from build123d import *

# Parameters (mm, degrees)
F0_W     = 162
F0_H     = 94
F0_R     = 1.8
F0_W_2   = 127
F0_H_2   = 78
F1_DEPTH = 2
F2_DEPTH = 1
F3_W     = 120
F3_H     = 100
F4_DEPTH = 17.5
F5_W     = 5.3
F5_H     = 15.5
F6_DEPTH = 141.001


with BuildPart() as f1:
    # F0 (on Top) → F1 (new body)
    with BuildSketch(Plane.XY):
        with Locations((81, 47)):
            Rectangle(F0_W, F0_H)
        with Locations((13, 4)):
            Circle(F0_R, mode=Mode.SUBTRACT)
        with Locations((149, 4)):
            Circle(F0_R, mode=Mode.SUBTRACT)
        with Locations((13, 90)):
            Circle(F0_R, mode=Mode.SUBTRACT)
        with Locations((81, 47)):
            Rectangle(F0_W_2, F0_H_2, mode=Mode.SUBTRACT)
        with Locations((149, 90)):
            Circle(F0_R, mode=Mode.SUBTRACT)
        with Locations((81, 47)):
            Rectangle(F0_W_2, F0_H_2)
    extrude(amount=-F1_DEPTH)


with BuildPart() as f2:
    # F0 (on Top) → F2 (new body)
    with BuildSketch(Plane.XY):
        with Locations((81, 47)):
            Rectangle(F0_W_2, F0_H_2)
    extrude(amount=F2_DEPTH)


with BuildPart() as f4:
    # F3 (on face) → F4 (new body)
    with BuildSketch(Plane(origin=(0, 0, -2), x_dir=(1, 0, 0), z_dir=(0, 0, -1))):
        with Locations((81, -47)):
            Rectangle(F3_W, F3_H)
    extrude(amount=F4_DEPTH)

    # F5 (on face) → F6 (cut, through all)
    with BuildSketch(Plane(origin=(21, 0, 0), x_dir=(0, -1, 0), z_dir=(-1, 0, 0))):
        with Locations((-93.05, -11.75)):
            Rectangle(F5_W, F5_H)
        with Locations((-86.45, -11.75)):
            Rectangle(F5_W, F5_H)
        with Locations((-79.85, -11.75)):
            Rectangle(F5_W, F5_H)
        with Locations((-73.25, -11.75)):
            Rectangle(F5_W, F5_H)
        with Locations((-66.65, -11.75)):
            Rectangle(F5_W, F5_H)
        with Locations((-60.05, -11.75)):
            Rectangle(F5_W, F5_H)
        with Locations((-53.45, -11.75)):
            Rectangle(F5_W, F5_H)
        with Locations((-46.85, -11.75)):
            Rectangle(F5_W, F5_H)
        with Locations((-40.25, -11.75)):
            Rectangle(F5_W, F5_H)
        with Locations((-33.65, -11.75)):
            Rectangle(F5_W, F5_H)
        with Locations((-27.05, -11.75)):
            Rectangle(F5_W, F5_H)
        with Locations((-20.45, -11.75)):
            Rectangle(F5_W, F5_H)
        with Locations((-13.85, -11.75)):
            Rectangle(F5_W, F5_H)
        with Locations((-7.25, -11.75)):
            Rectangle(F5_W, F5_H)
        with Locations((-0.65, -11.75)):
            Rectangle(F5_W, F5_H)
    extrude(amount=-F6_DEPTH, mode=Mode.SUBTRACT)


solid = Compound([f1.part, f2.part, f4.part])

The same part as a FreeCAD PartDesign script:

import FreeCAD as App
import Part
import Sketcher

V = App.Vector
Q = App.Units.Quantity

doc = App.newDocument("Part")
body = doc.addObject("PartDesign::Body", "Body")

# Sketch on XY plane
sketch1 = body.newObject("Sketcher::SketchObject", "Sketch")
sketch1.AttachmentSupport = (doc.getObject("XY_Plane"), [""])
sketch1.MapMode = "FlatFace"
sketch1.addGeometry([
    Part.LineSegment(V(0, 94, 0), V(0, 0, 0)),  # 0
    Part.LineSegment(V(0, 0, 0), V(162, 0, 0)),  # 1
    Part.LineSegment(V(162, 0, 0), V(162, 94, 0)),  # 2
    Part.LineSegment(V(162, 94, 0), V(0, 94, 0)),  # 3
    Part.Circle(V(13, 4, 0), V(0, 0, 1), 1.8),  # 4
    Part.Circle(V(149, 4, 0), V(0, 0, 1), 1.8),  # 5
    Part.Circle(V(13, 90, 0), V(0, 0, 1), 1.8),  # 6
    Part.Circle(V(149, 90, 0), V(0, 0, 1), 1.8),  # 7
], False)
sketch1.addConstraint([
    Sketcher.Constraint("Coincident", 0, 2, 1, 1),
    Sketcher.Constraint("Coincident", 1, 2, 2, 1),
    Sketcher.Constraint("Coincident", 2, 2, 3, 1),
    Sketcher.Constraint("Coincident", 3, 2, 0, 1),
    Sketcher.Constraint("Vertical", 0),
    Sketcher.Constraint("Horizontal", 1),
    Sketcher.Constraint("Vertical", 2),
    Sketcher.Constraint("Horizontal", 3),
    Sketcher.Constraint("Coincident", 0, 2, -1, 1),
    Sketcher.Constraint("Equal", 4, 5),
    Sketcher.Constraint("Equal", 5, 6),
    Sketcher.Constraint("Equal", 6, 7),
    Sketcher.Constraint("Horizontal", 4, 3, 5, 3),
    Sketcher.Constraint("Horizontal", 6, 3, 7, 3),
    Sketcher.Constraint("Vertical", 4, 3, 6, 3),
    Sketcher.Constraint("Vertical", 5, 3, 7, 3),
    Sketcher.Constraint("Diameter", 4, Q("3.6 mm")),
    Sketcher.Constraint("DistanceX", 1, 1, 1, 2, Q("162 mm")),
    Sketcher.Constraint("DistanceY", 0, 2, 0, 1, Q("94 mm")),
    Sketcher.Constraint("DistanceX", -1, 1, 4, 3, Q("13 mm")),
    Sketcher.Constraint("DistanceY", -1, 1, 4, 3, Q("4 mm")),
    Sketcher.Constraint("DistanceX", -1, 1, 5, 3, Q("149 mm")),
    Sketcher.Constraint("DistanceY", -1, 1, 6, 3, Q("90 mm")),
])
pad1 = body.newObject("PartDesign::Pad", "Pad")
pad1.Profile = sketch1
pad1.Length = 2
pad1.Reversed = True
body2 = doc.addObject("PartDesign::Body", "Body001")

# Sketch on XY plane
sketch2 = body2.newObject("Sketcher::SketchObject", "Sketch001")
sketch2.AttachmentSupport = (doc.getObject("XY_Plane001"), [""])
sketch2.MapMode = "FlatFace"
sketch2.addGeometry([
    Part.LineSegment(V(18, 86, 0), V(18, 8, 0)),
    Part.LineSegment(V(18, 8, 0), V(144, 8, 0)),
    Part.LineSegment(V(144, 8, 0), V(144, 86, 0)),
    Part.LineSegment(V(144, 86, 0), V(18, 86, 0)),
], False)
sketch2.addConstraint([
    Sketcher.Constraint("Coincident", 0, 2, 1, 1),
    Sketcher.Constraint("Coincident", 1, 2, 2, 1),
    Sketcher.Constraint("Coincident", 2, 2, 3, 1),
    Sketcher.Constraint("Coincident", 3, 2, 0, 1),
    Sketcher.Constraint("Vertical", 0),
    Sketcher.Constraint("Horizontal", 1),
    Sketcher.Constraint("Vertical", 2),
    Sketcher.Constraint("Horizontal", 3),
    Sketcher.Constraint("DistanceX", 1, 1, 1, 2, Q("127 mm")),
    Sketcher.Constraint("DistanceY", 0, 2, 0, 1, Q("78 mm")),
    Sketcher.Constraint("DistanceY", -1, 1, 0, 2, Q("8 mm")),
    Sketcher.Constraint("DistanceX", -1, 1, 0, 2, Q("17.5 mm")),
])
pad2 = body2.newObject("PartDesign::Pad", "Pad001")
pad2.Profile = sketch2
pad2.Length = 1
body3 = doc.addObject("PartDesign::Body", "Body002")

# Sketch on XY plane
sketch3 = body3.newObject("Sketcher::SketchObject", "Sketch002")
sketch3.AttachmentSupport = (doc.getObject("XY_Plane002"), [""])
sketch3.MapMode = "FlatFace"
sketch3.AttachmentOffset = App.Placement(V(0, 0, -2), App.Rotation())
sketch3.addGeometry([
    Part.LineSegment(V(21, -3, 0), V(21, 97, 0)),
    Part.LineSegment(V(21, 97, 0), V(141, 97, 0)),
    Part.LineSegment(V(141, 97, 0), V(141, -3, 0)),
    Part.LineSegment(V(141, -3, 0), V(21, -3, 0)),
], False)
sketch3.addConstraint([
    Sketcher.Constraint("Coincident", 0, 2, 1, 1),
    Sketcher.Constraint("Coincident", 1, 2, 2, 1),
    Sketcher.Constraint("Coincident", 2, 2, 3, 1),
    Sketcher.Constraint("Coincident", 3, 2, 0, 1),
    Sketcher.Constraint("Vertical", 0),
    Sketcher.Constraint("Horizontal", 1),
    Sketcher.Constraint("Vertical", 2),
    Sketcher.Constraint("Horizontal", 3),
    Sketcher.Constraint("DistanceX", 1, 1, 1, 2, Q("120 mm")),
    Sketcher.Constraint("DistanceY", 0, 1, 0, 2, Q("100 mm")),
    Sketcher.Constraint("DistanceX", -1, 1, 0, 2, Q("21 mm")),
    Sketcher.Constraint("DistanceY", -1, 1, 0, 2, Q("97 mm")),
])
pad3 = body3.newObject("PartDesign::Pad", "Pad002")
pad3.Profile = sketch3
pad3.Length = 17.5
pad3.Reversed = True

# Sketch on YZ plane
sketch4 = body3.newObject("Sketcher::SketchObject", "Sketch003")
sketch4.AttachmentSupport = (doc.getObject("YZ_Plane002"), [""])
sketch4.MapMode = "FlatFace"
sketch4.AttachmentOffset = App.Placement(V(0, 0, 21), App.Rotation())
sketch4.addGeometry([
    Part.LineSegment(V(96, -4, 0), V(96, -20, 0)),  # 0
    Part.LineSegment(V(96, -20, 0), V(90, -20, 0)),  # 1
    Part.LineSegment(V(90, -20, 0), V(90, -4, 0)),  # 2
    Part.LineSegment(V(90, -4, 0), V(96, -4, 0)),  # 3
    Part.LineSegment(V(89, -4, 0), V(89, -20, 0)),  # 4
    Part.LineSegment(V(89, -20, 0), V(84, -20, 0)),  # 5
    Part.LineSegment(V(84, -20, 0), V(84, -4, 0)),  # 6
    Part.LineSegment(V(84, -4, 0), V(89, -4, 0)),  # 7
    Part.LineSegment(V(82, -4, 0), V(82, -20, 0)),  # 8
    Part.LineSegment(V(82, -20, 0), V(77, -20, 0)),  # 9
    Part.LineSegment(V(77, -20, 0), V(77, -4, 0)),  # 10
    Part.LineSegment(V(77, -4, 0), V(82, -4, 0)),  # 11
    Part.LineSegment(V(76, -4, 0), V(76, -20, 0)),  # 12
    Part.LineSegment(V(76, -20, 0), V(71, -20, 0)),  # 13
    Part.LineSegment(V(71, -20, 0), V(71, -4, 0)),  # 14
    Part.LineSegment(V(71, -4, 0), V(76, -4, 0)),  # 15
    Part.LineSegment(V(69, -4, 0), V(69, -20, 0)),  # 16
    Part.LineSegment(V(69, -20, 0), V(64, -20, 0)),  # 17
    Part.LineSegment(V(64, -20, 0), V(64, -4, 0)),  # 18
    Part.LineSegment(V(64, -4, 0), V(69, -4, 0)),  # 19
    Part.LineSegment(V(63, -4, 0), V(63, -20, 0)),  # 20
    Part.LineSegment(V(63, -20, 0), V(57, -20, 0)),  # 21
    Part.LineSegment(V(57, -20, 0), V(57, -4, 0)),  # 22
    Part.LineSegment(V(57, -4, 0), V(63, -4, 0)),  # 23
    Part.LineSegment(V(56, -4, 0), V(56, -20, 0)),  # 24
    Part.LineSegment(V(56, -20, 0), V(51, -20, 0)),  # 25
    Part.LineSegment(V(51, -20, 0), V(51, -4, 0)),  # 26
    Part.LineSegment(V(51, -4, 0), V(56, -4, 0)),  # 27
    Part.LineSegment(V(50, -4, 0), V(50, -20, 0)),  # 28
    Part.LineSegment(V(50, -20, 0), V(44, -20, 0)),  # 29
    Part.LineSegment(V(44, -20, 0), V(44, -4, 0)),  # 30
    Part.LineSegment(V(44, -4, 0), V(50, -4, 0)),  # 31
    Part.LineSegment(V(43, -4, 0), V(43, -20, 0)),  # 32
    Part.LineSegment(V(43, -20, 0), V(38, -20, 0)),  # 33
    Part.LineSegment(V(38, -20, 0), V(38, -4, 0)),  # 34
    Part.LineSegment(V(38, -4, 0), V(43, -4, 0)),  # 35
    Part.LineSegment(V(36, -4, 0), V(36, -20, 0)),  # 36
    Part.LineSegment(V(36, -20, 0), V(31, -20, 0)),  # 37
    Part.LineSegment(V(31, -20, 0), V(31, -4, 0)),  # 38
    Part.LineSegment(V(31, -4, 0), V(36, -4, 0)),  # 39
    Part.LineSegment(V(30, -4, 0), V(30, -20, 0)),  # 40
    Part.LineSegment(V(30, -20, 0), V(24, -20, 0)),  # 41
    Part.LineSegment(V(24, -20, 0), V(24, -4, 0)),  # 42
    Part.LineSegment(V(24, -4, 0), V(30, -4, 0)),  # 43
    Part.LineSegment(V(23, -4, 0), V(23, -20, 0)),  # 44
    Part.LineSegment(V(23, -20, 0), V(18, -20, 0)),  # 45
    Part.LineSegment(V(18, -20, 0), V(18, -4, 0)),  # 46
    Part.LineSegment(V(18, -4, 0), V(23, -4, 0)),  # 47
    Part.LineSegment(V(16, -4, 0), V(16, -20, 0)),  # 48
    Part.LineSegment(V(16, -20, 0), V(11, -20, 0)),  # 49
    Part.LineSegment(V(11, -20, 0), V(11, -4, 0)),  # 50
    Part.LineSegment(V(11, -4, 0), V(16, -4, 0)),  # 51
    Part.LineSegment(V(10, -4, 0), V(10, -20, 0)),  # 52
    Part.LineSegment(V(10, -20, 0), V(5, -20, 0)),  # 53
    Part.LineSegment(V(5, -20, 0), V(5, -4, 0)),  # 54
    Part.LineSegment(V(5, -4, 0), V(10, -4, 0)),  # 55
    Part.LineSegment(V(3, -4, 0), V(3, -20, 0)),  # 56
    Part.LineSegment(V(3, -20, 0), V(-2, -20, 0)),  # 57
    Part.LineSegment(V(-2, -20, 0), V(-2, -4, 0)),  # 58
    Part.LineSegment(V(-2, -4, 0), V(3, -4, 0)),  # 59
], False)
sketch4.addConstraint([
    Sketcher.Constraint("Coincident", 0, 2, 1, 1),
    Sketcher.Constraint("Coincident", 1, 2, 2, 1),
    Sketcher.Constraint("Coincident", 2, 2, 3, 1),
    Sketcher.Constraint("Coincident", 3, 2, 0, 1),
    Sketcher.Constraint("Coincident", 4, 2, 5, 1),
    Sketcher.Constraint("Coincident", 5, 2, 6, 1),
    Sketcher.Constraint("Coincident", 6, 2, 7, 1),
    Sketcher.Constraint("Coincident", 7, 2, 4, 1),
    Sketcher.Constraint("Coincident", 8, 2, 9, 1),
    Sketcher.Constraint("Coincident", 9, 2, 10, 1),
    Sketcher.Constraint("Coincident", 10, 2, 11, 1),
    Sketcher.Constraint("Coincident", 11, 2, 8, 1),
    Sketcher.Constraint("Coincident", 12, 2, 13, 1),
    Sketcher.Constraint("Coincident", 13, 2, 14, 1),
    Sketcher.Constraint("Coincident", 14, 2, 15, 1),
    Sketcher.Constraint("Coincident", 15, 2, 12, 1),
    Sketcher.Constraint("Coincident", 16, 2, 17, 1),
    Sketcher.Constraint("Coincident", 17, 2, 18, 1),
    Sketcher.Constraint("Coincident", 18, 2, 19, 1),
    Sketcher.Constraint("Coincident", 19, 2, 16, 1),
    Sketcher.Constraint("Coincident", 20, 2, 21, 1),
    Sketcher.Constraint("Coincident", 21, 2, 22, 1),
    Sketcher.Constraint("Coincident", 22, 2, 23, 1),
    Sketcher.Constraint("Coincident", 23, 2, 20, 1),
    Sketcher.Constraint("Coincident", 24, 2, 25, 1),
    Sketcher.Constraint("Coincident", 25, 2, 26, 1),
    Sketcher.Constraint("Coincident", 26, 2, 27, 1),
    Sketcher.Constraint("Coincident", 27, 2, 24, 1),
    Sketcher.Constraint("Coincident", 28, 2, 29, 1),
    Sketcher.Constraint("Coincident", 29, 2, 30, 1),
    Sketcher.Constraint("Coincident", 30, 2, 31, 1),
    Sketcher.Constraint("Coincident", 31, 2, 28, 1),
    Sketcher.Constraint("Coincident", 32, 2, 33, 1),
    Sketcher.Constraint("Coincident", 33, 2, 34, 1),
    Sketcher.Constraint("Coincident", 34, 2, 35, 1),
    Sketcher.Constraint("Coincident", 35, 2, 32, 1),
    Sketcher.Constraint("Coincident", 36, 2, 37, 1),
    Sketcher.Constraint("Coincident", 37, 2, 38, 1),
    Sketcher.Constraint("Coincident", 38, 2, 39, 1),
    Sketcher.Constraint("Coincident", 39, 2, 36, 1),
    Sketcher.Constraint("Coincident", 40, 2, 41, 1),
    Sketcher.Constraint("Coincident", 41, 2, 42, 1),
    Sketcher.Constraint("Coincident", 42, 2, 43, 1),
    Sketcher.Constraint("Coincident", 43, 2, 40, 1),
    Sketcher.Constraint("Coincident", 44, 2, 45, 1),
    Sketcher.Constraint("Coincident", 45, 2, 46, 1),
    Sketcher.Constraint("Coincident", 46, 2, 47, 1),
    Sketcher.Constraint("Coincident", 47, 2, 44, 1),
    Sketcher.Constraint("Coincident", 48, 2, 49, 1),
    Sketcher.Constraint("Coincident", 49, 2, 50, 1),
    Sketcher.Constraint("Coincident", 50, 2, 51, 1),
    Sketcher.Constraint("Coincident", 51, 2, 48, 1),
    Sketcher.Constraint("Coincident", 52, 2, 53, 1),
    Sketcher.Constraint("Coincident", 53, 2, 54, 1),
    Sketcher.Constraint("Coincident", 54, 2, 55, 1),
    Sketcher.Constraint("Coincident", 55, 2, 52, 1),
    Sketcher.Constraint("Coincident", 56, 2, 57, 1),
    Sketcher.Constraint("Coincident", 57, 2, 58, 1),
    Sketcher.Constraint("Coincident", 58, 2, 59, 1),
    Sketcher.Constraint("Coincident", 59, 2, 56, 1),
    Sketcher.Constraint("Vertical", 0),
    Sketcher.Constraint("Horizontal", 1),
    Sketcher.Constraint("Vertical", 2),
    Sketcher.Constraint("Horizontal", 3),
    Sketcher.Constraint("Vertical", 4),
    Sketcher.Constraint("Horizontal", 5),
    Sketcher.Constraint("Vertical", 6),
    Sketcher.Constraint("Horizontal", 7),
    Sketcher.Constraint("Vertical", 8),
    Sketcher.Constraint("Horizontal", 9),
    Sketcher.Constraint("Vertical", 10),
    Sketcher.Constraint("Horizontal", 11),
    Sketcher.Constraint("Vertical", 12),
    Sketcher.Constraint("Horizontal", 13),
    Sketcher.Constraint("Vertical", 14),
    Sketcher.Constraint("Horizontal", 15),
    Sketcher.Constraint("Vertical", 16),
    Sketcher.Constraint("Horizontal", 17),
    Sketcher.Constraint("Vertical", 18),
    Sketcher.Constraint("Horizontal", 19),
    Sketcher.Constraint("Vertical", 20),
    Sketcher.Constraint("Horizontal", 21),
    Sketcher.Constraint("Vertical", 22),
    Sketcher.Constraint("Horizontal", 23),
    Sketcher.Constraint("Vertical", 24),
    Sketcher.Constraint("Horizontal", 25),
    Sketcher.Constraint("Vertical", 26),
    Sketcher.Constraint("Horizontal", 27),
    Sketcher.Constraint("Vertical", 28),
    Sketcher.Constraint("Horizontal", 29),
    Sketcher.Constraint("Vertical", 30),
    Sketcher.Constraint("Horizontal", 31),
    Sketcher.Constraint("Vertical", 32),
    Sketcher.Constraint("Horizontal", 33),
    Sketcher.Constraint("Vertical", 34),
    Sketcher.Constraint("Horizontal", 35),
    Sketcher.Constraint("Vertical", 36),
    Sketcher.Constraint("Horizontal", 37),
    Sketcher.Constraint("Vertical", 38),
    Sketcher.Constraint("Horizontal", 39),
    Sketcher.Constraint("Vertical", 40),
    Sketcher.Constraint("Horizontal", 41),
    Sketcher.Constraint("Vertical", 42),
    Sketcher.Constraint("Horizontal", 43),
    Sketcher.Constraint("Vertical", 44),
    Sketcher.Constraint("Horizontal", 45),
    Sketcher.Constraint("Vertical", 46),
    Sketcher.Constraint("Horizontal", 47),
    Sketcher.Constraint("Vertical", 48),
    Sketcher.Constraint("Horizontal", 49),
    Sketcher.Constraint("Vertical", 50),
    Sketcher.Constraint("Horizontal", 51),
    Sketcher.Constraint("Vertical", 52),
    Sketcher.Constraint("Horizontal", 53),
    Sketcher.Constraint("Vertical", 54),
    Sketcher.Constraint("Horizontal", 55),
    Sketcher.Constraint("Vertical", 56),
    Sketcher.Constraint("Horizontal", 57),
    Sketcher.Constraint("Vertical", 58),
    Sketcher.Constraint("Horizontal", 59),
    Sketcher.Constraint("Horizontal", 1, 2, 4, 2),
    Sketcher.Constraint("Horizontal", 3, 2, 6, 2),
    Sketcher.Constraint("Horizontal", 5, 2, 8, 2),
    Sketcher.Constraint("Horizontal", 7, 2, 10, 2),
    Sketcher.Constraint("Horizontal", 9, 2, 12, 2),
    Sketcher.Constraint("Horizontal", 11, 2, 14, 2),
    Sketcher.Constraint("Horizontal", 13, 2, 16, 2),
    Sketcher.Constraint("Horizontal", 15, 2, 18, 2),
    Sketcher.Constraint("Horizontal", 17, 2, 20, 2),
    Sketcher.Constraint("Horizontal", 19, 2, 22, 2),
    Sketcher.Constraint("Horizontal", 21, 2, 24, 2),
    Sketcher.Constraint("Horizontal", 23, 2, 26, 2),
    Sketcher.Constraint("Horizontal", 25, 2, 28, 2),
    Sketcher.Constraint("Horizontal", 27, 2, 30, 2),
    Sketcher.Constraint("Horizontal", 29, 2, 32, 2),
    Sketcher.Constraint("Horizontal", 31, 2, 34, 2),
    Sketcher.Constraint("Horizontal", 33, 2, 36, 2),
    Sketcher.Constraint("Horizontal", 35, 2, 38, 2),
    Sketcher.Constraint("Horizontal", 37, 2, 40, 2),
    Sketcher.Constraint("Horizontal", 39, 2, 42, 2),
    Sketcher.Constraint("Horizontal", 41, 2, 44, 2),
    Sketcher.Constraint("Horizontal", 43, 2, 46, 2),
    Sketcher.Constraint("Horizontal", 45, 2, 48, 2),
    Sketcher.Constraint("Horizontal", 47, 2, 50, 2),
    Sketcher.Constraint("Horizontal", 49, 2, 52, 2),
    Sketcher.Constraint("Horizontal", 51, 2, 54, 2),
    Sketcher.Constraint("Horizontal", 53, 2, 56, 2),
    Sketcher.Constraint("Horizontal", 55, 2, 58, 2),
    Sketcher.Constraint("Equal", 3, 5),
    Sketcher.Constraint("Equal", 7, 9),
    Sketcher.Constraint("Equal", 11, 13),
    Sketcher.Constraint("Equal", 15, 17),
    Sketcher.Constraint("Equal", 19, 21),
    Sketcher.Constraint("Equal", 23, 25),
    Sketcher.Constraint("Equal", 27, 29),
    Sketcher.Constraint("Equal", 31, 33),
    Sketcher.Constraint("Equal", 35, 37),
    Sketcher.Constraint("Equal", 39, 41),
    Sketcher.Constraint("Equal", 43, 45),
    Sketcher.Constraint("Equal", 47, 49),
    Sketcher.Constraint("Equal", 51, 53),
    Sketcher.Constraint("Equal", 55, 57),
    Sketcher.Constraint("DistanceX", 1, 2, 1, 1, Q("5.3 mm")),
    Sketcher.Constraint("DistanceY", 0, 2, 0, 1, Q("15.5 mm")),
    Sketcher.Constraint("DistanceY", 2, 2, -1, 1, Q("4 mm")),
    Sketcher.Constraint("DistanceX", -1, 1, 17, 2, Q("64 mm")),
    Sketcher.Constraint("DistanceX", -1, 1, 37, 2, Q("31 mm")),
    Sketcher.Constraint("DistanceX", 57, 2, -1, 1, Q("2 mm")),
    Sketcher.Constraint("DistanceX", -1, 1, 0, 2, Q("95.7 mm")),
    Sketcher.Constraint("DistanceX", -1, 1, 4, 2, Q("89.1 mm")),
    Sketcher.Constraint("DistanceX", -1, 1, 8, 2, Q("82.5 mm")),
    Sketcher.Constraint("DistanceX", -1, 1, 12, 2, Q("75.9 mm")),
    Sketcher.Constraint("DistanceX", -1, 1, 20, 2, Q("62.7 mm")),
    Sketcher.Constraint("DistanceX", -1, 1, 24, 2, Q("56.1 mm")),
    Sketcher.Constraint("DistanceX", -1, 1, 28, 2, Q("49.5 mm")),
    Sketcher.Constraint("DistanceX", -1, 1, 32, 2, Q("42.9 mm")),
    Sketcher.Constraint("DistanceX", -1, 1, 40, 2, Q("29.7 mm")),
    Sketcher.Constraint("DistanceX", -1, 1, 44, 2, Q("23.1 mm")),
    Sketcher.Constraint("DistanceX", -1, 1, 48, 2, Q("16.5 mm")),
    Sketcher.Constraint("DistanceX", -1, 1, 52, 2, Q("9.9 mm")),
])
pocket1 = body3.newObject("PartDesign::Pocket", "Pocket")
pocket1.Profile = sketch4
pocket1.Type = "ThroughAll"
pocket1.Reversed = True

doc.recompute()
